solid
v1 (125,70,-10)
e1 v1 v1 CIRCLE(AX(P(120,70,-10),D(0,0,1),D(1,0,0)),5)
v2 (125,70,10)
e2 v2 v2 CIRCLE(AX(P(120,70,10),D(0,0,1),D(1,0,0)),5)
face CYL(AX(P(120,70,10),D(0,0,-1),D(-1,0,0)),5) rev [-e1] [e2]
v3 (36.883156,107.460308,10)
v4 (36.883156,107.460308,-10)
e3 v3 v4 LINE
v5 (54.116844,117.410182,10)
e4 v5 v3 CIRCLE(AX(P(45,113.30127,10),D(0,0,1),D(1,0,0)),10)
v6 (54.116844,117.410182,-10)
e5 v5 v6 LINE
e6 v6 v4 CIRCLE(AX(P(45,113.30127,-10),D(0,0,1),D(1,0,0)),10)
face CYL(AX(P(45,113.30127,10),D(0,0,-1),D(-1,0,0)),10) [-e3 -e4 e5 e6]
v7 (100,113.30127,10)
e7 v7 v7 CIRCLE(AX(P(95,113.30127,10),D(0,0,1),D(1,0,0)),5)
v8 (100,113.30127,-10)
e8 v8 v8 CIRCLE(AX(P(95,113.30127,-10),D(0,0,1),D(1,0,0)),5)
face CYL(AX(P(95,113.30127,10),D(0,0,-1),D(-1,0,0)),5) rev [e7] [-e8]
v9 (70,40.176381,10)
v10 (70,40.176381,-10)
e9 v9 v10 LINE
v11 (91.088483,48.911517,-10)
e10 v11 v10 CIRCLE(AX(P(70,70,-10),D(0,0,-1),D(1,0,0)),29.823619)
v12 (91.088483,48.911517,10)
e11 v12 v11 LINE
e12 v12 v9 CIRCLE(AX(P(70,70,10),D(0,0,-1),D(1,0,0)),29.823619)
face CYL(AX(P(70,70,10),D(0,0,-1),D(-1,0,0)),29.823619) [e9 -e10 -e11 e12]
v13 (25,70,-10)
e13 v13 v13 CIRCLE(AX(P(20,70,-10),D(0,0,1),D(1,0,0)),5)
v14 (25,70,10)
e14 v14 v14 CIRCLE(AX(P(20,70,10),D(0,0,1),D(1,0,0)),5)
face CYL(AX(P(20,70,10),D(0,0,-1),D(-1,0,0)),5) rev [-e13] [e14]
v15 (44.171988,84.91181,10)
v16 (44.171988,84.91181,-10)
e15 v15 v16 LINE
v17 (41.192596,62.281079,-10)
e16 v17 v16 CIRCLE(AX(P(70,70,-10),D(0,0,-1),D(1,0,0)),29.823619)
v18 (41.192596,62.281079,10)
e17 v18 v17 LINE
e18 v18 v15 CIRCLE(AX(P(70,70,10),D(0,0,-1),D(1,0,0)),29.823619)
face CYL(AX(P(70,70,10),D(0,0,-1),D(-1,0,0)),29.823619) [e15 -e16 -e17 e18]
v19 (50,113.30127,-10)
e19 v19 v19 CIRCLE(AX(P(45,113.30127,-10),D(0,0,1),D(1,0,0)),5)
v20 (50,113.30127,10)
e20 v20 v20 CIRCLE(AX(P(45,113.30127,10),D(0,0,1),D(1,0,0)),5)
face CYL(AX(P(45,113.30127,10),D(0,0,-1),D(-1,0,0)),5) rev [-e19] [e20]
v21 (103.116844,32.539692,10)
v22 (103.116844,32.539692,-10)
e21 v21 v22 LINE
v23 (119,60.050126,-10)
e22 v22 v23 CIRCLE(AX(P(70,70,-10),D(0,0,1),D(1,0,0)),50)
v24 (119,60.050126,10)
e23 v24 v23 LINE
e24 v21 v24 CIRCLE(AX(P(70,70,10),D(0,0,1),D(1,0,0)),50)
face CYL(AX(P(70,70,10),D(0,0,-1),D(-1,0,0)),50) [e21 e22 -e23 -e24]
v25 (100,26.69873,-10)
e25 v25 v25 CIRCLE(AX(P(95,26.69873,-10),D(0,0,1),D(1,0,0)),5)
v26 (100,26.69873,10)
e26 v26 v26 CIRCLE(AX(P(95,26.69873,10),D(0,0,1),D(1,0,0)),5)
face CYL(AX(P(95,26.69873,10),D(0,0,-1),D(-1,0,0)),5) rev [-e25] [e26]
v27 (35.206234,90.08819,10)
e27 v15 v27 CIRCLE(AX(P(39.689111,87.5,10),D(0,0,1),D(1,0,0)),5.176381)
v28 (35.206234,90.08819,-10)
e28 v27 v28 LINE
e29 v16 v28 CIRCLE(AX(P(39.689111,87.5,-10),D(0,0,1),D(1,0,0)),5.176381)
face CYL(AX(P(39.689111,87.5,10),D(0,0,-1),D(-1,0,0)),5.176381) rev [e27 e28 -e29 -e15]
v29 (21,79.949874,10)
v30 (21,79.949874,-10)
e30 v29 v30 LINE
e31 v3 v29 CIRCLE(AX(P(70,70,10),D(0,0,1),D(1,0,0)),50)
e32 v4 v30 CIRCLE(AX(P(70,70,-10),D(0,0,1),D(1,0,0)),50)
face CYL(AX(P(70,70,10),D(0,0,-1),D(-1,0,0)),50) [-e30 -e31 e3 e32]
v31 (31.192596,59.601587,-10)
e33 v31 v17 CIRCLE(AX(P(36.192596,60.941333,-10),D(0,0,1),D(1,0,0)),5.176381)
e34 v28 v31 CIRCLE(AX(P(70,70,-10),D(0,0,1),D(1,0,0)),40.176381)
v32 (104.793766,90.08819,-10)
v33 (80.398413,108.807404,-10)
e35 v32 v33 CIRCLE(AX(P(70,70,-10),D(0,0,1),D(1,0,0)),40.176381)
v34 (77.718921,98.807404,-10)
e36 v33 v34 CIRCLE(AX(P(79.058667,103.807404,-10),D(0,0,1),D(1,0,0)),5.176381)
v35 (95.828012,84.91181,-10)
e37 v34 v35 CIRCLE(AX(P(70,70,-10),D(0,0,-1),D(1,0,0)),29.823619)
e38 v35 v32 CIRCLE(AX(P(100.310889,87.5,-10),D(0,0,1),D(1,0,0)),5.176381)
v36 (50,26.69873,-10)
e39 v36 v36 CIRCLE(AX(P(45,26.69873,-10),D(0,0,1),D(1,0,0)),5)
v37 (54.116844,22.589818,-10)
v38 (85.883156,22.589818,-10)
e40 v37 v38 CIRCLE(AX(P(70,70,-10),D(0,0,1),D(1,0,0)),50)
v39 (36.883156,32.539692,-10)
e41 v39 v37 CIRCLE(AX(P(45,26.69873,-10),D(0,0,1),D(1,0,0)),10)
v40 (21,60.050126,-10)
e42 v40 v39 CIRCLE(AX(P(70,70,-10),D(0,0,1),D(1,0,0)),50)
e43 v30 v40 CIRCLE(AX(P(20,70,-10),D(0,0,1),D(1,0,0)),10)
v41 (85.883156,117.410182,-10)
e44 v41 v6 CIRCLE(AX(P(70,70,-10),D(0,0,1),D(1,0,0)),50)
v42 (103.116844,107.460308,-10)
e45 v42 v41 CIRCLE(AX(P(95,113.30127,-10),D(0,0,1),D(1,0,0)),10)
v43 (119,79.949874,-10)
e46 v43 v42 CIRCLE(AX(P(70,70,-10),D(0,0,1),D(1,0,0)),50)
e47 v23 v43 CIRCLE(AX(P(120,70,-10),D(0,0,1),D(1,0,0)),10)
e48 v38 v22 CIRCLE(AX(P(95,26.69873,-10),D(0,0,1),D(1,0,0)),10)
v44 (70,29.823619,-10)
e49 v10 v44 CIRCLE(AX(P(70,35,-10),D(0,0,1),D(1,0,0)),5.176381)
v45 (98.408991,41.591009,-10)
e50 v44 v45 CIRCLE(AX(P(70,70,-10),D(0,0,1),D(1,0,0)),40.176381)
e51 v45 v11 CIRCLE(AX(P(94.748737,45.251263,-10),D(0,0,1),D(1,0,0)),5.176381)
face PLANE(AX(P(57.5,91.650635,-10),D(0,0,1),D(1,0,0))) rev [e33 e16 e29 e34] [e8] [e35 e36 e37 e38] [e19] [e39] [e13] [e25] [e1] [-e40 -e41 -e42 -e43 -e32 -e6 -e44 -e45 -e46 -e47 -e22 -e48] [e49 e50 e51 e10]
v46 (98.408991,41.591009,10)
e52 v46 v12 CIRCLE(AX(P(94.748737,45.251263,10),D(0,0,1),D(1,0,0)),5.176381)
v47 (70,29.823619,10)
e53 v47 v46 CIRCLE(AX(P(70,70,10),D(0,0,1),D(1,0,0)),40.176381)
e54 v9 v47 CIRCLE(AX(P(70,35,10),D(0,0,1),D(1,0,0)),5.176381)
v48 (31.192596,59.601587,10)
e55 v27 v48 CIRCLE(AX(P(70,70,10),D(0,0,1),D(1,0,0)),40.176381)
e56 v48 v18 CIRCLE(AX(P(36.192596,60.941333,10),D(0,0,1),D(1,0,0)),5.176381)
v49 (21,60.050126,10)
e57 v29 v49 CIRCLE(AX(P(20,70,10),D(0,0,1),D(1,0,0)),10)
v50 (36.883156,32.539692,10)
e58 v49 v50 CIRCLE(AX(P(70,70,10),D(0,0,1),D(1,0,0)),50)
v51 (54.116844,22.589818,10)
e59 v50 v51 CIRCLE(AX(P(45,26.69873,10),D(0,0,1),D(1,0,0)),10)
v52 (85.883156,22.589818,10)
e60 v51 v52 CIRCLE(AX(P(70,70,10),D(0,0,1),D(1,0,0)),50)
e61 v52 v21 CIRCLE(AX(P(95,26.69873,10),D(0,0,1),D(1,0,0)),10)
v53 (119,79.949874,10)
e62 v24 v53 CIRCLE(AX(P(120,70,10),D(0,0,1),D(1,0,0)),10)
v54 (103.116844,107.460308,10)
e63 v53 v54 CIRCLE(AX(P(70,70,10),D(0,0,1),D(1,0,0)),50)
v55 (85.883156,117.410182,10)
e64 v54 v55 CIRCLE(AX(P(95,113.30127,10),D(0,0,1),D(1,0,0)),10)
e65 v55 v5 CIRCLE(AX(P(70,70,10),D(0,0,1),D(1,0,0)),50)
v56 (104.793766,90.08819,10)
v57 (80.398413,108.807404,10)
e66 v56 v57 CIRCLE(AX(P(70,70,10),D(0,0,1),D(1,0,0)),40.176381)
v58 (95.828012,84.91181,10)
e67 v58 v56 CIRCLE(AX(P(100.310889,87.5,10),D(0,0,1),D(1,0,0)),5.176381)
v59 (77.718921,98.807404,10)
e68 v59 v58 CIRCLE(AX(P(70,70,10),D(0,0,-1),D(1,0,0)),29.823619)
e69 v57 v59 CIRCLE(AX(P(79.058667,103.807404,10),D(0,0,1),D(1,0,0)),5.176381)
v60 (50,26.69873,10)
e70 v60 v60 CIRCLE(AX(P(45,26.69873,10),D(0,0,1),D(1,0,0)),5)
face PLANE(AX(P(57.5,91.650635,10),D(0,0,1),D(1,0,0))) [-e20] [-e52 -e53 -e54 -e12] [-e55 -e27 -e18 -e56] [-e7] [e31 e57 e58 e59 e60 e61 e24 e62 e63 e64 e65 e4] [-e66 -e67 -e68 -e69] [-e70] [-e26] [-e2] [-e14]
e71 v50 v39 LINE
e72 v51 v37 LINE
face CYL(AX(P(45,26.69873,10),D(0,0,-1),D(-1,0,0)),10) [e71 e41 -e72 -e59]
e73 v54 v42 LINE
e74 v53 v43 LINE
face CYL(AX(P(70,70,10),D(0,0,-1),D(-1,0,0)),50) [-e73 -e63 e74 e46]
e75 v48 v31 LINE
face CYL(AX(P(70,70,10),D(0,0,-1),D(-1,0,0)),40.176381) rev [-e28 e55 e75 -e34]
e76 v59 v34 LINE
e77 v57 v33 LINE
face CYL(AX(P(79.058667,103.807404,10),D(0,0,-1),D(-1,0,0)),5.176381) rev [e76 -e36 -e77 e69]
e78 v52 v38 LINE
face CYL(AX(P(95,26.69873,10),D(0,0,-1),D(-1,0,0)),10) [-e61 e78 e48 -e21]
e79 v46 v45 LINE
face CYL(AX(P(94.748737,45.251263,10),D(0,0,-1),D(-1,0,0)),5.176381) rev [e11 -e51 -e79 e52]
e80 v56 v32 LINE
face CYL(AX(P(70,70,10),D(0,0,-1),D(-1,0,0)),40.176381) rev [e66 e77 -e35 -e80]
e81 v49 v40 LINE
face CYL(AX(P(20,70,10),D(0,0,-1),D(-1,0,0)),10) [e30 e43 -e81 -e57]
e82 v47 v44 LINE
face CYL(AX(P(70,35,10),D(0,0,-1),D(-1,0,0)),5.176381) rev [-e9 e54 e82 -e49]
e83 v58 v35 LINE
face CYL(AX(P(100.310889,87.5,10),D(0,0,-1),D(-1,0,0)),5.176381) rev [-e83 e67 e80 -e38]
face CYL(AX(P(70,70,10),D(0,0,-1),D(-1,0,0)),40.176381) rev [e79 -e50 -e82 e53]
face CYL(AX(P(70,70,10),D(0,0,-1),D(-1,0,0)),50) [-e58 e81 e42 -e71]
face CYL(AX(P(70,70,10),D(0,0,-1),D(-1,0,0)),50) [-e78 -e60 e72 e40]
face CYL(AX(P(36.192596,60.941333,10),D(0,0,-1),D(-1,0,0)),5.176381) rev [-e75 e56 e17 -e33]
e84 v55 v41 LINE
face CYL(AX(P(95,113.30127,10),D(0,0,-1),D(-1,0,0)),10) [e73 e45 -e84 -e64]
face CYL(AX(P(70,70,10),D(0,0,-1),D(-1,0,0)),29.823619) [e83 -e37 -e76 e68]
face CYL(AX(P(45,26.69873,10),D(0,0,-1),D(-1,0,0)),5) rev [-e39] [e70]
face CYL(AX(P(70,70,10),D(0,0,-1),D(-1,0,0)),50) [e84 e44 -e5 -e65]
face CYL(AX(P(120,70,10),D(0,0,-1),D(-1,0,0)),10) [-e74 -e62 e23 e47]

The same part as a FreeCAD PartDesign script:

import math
import FreeCAD as App
import Part
import Sketcher
from FreeCAD import Vector

doc = App.newDocument("Part")
params = doc.addObject("Spreadsheet::Sheet", "Params")
for row, (alias, value) in enumerate([
    ("sketch1_diameter", "10 mm"),
    ("sketch1_radius", "50 mm"),
    ("sketch1_radius2", "10 mm"),
    ("pad1_length", "20 mm"),
], start=1):
    params.set(f"A{row}", alias)
    params.set(f"B{row}", "=" + value)
    params.setAlias(f"B{row}", alias)

body = doc.addObject("PartDesign::Body", "Body")

# Sketch on XY plane
sketch1 = doc.addObject("Sketcher::SketchObject", "Sketch")
body.addObject(sketch1)
sketch1.AttachmentSupport = (doc.XY_Plane, [""])
sketch1.MapMode = "FlatFace"
sketch1.addGeometry(Part.ArcOfCircle(Part.Circle(Vector(70, 70, 0), Vector(0, 0, 1), 50), math.radians(71), math.radians(109)), False)
sketch1.addGeometry(Part.ArcOfCircle(Part.Circle(Vector(45, 113, 0), Vector(0, 0, 1), 10), math.radians(24), math.radians(216)), False)
sketch1.addGeometry(Part.ArcOfCircle(Part.Circle(Vector(70, 70, 0), Vector(0, 0, 1), 50), math.radians(131), math.radians(169)), False)
sketch1.addGeometry(Part.ArcOfCircle(Part.Circle(Vector(20, 70, 0), Vector(0, 0, 1), 10), math.radians(84), math.radians(276)), False)
sketch1.addGeometry(Part.ArcOfCircle(Part.Circle(Vector(70, 70, 0), Vector(0, 0, 1), 50), math.radians(-169), math.radians(-131)), False)
sketch1.addGeometry(Part.ArcOfCircle(Part.Circle(Vector(45, 27, 0), Vector(0, 0, 1), 10), math.radians(144), math.radians(336)), False)
sketch1.addGeometry(Part.ArcOfCircle(Part.Circle(Vector(70, 70, 0), Vector(0, 0, 1), 50), math.radians(-109), math.radians(-71)), False)
sketch1.addGeometry(Part.ArcOfCircle(Part.Circle(Vector(95, 27, 0), Vector(0, 0, 1), 10), math.radians(-156), math.radians(36)), False)
sketch1.addGeometry(Part.ArcOfCircle(Part.Circle(Vector(70, 70, 0), Vector(0, 0, 1), 50), math.radians(-49), math.radians(-11)), False)
sketch1.addGeometry(Part.ArcOfCircle(Part.Circle(Vector(120, 70, 0), Vector(0, 0, 1), 10), math.radians(-96), math.radians(96)), False)
sketch1.addGeometry(Part.ArcOfCircle(Part.Circle(Vector(70, 70, 0), Vector(0, 0, 1), 50), math.radians(11), math.radians(49)), False)
sketch1.addGeometry(Part.ArcOfCircle(Part.Circle(Vector(95, 113, 0), Vector(0, 0, 1), 10), math.radians(-36), math.radians(156)), False)
sketch1.addGeometry(Part.Circle(Vector(45, 27, 0), Vector(0, 0, 1), 5), False)
sketch1.addGeometry(Part.Circle(Vector(95, 27, 0), Vector(0, 0, 1), 5), False)
sketch1.addGeometry(Part.ArcOfCircle(Part.Circle(Vector(70, 70, 0), Vector(0, 0, 1), 40), math.radians(-90), math.radians(-45)), False)
sketch1.addGeometry(Part.ArcOfCircle(Part.Circle(Vector(70, 35, 0), Vector(0, 0, 1), 5), math.radians(90), math.radians(270)), False)
sketch1.addGeometry(Part.ArcOfCircle(Part.Circle(Vector(70, 70, 0), Vector(0, 0, 1), 30), math.radians(-90), math.radians(-45)), False)
sketch1.addGeometry(Part.ArcOfCircle(Part.Circle(Vector(95, 45, 0), Vector(0, 0, 1), 5), math.radians(-45), math.radians(135)), False)
sketch1.addGeometry(Part.Circle(Vector(20, 70, 0), Vector(0, 0, 1), 5), False)
sketch1.addGeometry(Part.ArcOfCircle(Part.Circle(Vector(70, 70, 0), Vector(0, 0, 1), 40), math.radians(150), math.radians(195)), False)
sketch1.addGeometry(Part.ArcOfCircle(Part.Circle(Vector(40, 88, 0), Vector(0, 0, 1), 5), math.radians(-30), math.radians(150)), False)
sketch1.addGeometry(Part.ArcOfCircle(Part.Circle(Vector(70, 70, 0), Vector(0, 0, 1), 30), math.radians(150), math.radians(195)), False)
sketch1.addGeometry(Part.ArcOfCircle(Part.Circle(Vector(36, 61, 0), Vector(0, 0, 1), 5), math.radians(-165), math.radians(15)), False)
sketch1.addGeometry(Part.Circle(Vector(45, 113, 0), Vector(0, 0, 1), 5), False)
sketch1.addGeometry(Part.Circle(Vector(120, 70, 0), Vector(0, 0, 1), 5), False)
sketch1.addGeometry(Part.ArcOfCircle(Part.Circle(Vector(70, 70, 0), Vector(0, 0, 1), 40), math.radians(30), math.radians(75)), False)
sketch1.addGeometry(Part.ArcOfCircle(Part.Circle(Vector(100, 88, 0), Vector(0, 0, 1), 5), math.radians(-150), math.radians(30)), False)
sketch1.addGeometry(Part.ArcOfCircle(Part.Circle(Vector(70, 70, 0), Vector(0, 0, 1), 30), math.radians(30), math.radians(75)), False)
sketch1.addGeometry(Part.ArcOfCircle(Part.Circle(Vector(79, 104, 0), Vector(0, 0, 1), 5), math.radians(75), math.radians(255)), False)
sketch1.addGeometry(Part.Circle(Vector(95, 113, 0), Vector(0, 0, 1), 5), False)
sketch1.addConstraint(Sketcher.Constraint("Coincident", 0, 2, 1, 1))
sketch1.addConstraint(Sketcher.Constraint("Coincident", 1, 2, 2, 1))
sketch1.addConstraint(Sketcher.Constraint("Coincident", 2, 2, 3, 1))
sketch1.addConstraint(Sketcher.Constraint("Coincident", 3, 2, 4, 1))
sketch1.addConstraint(Sketcher.Constraint("Coincident", 4, 2, 5, 1))
sketch1.addConstraint(Sketcher.Constraint("Coincident", 5, 2, 6, 1))
sketch1.addConstraint(Sketcher.Constraint("Coincident", 6, 2, 7, 1))
sketch1.addConstraint(Sketcher.Constraint("Coincident", 7, 2, 8, 1))
sketch1.addConstraint(Sketcher.Constraint("Coincident", 8, 2, 9, 1))
sketch1.addConstraint(Sketcher.Constraint("Coincident", 9, 2, 10, 1))
sketch1.addConstraint(Sketcher.Constraint("Coincident", 10, 2, 11, 1))
sketch1.addConstraint(Sketcher.Constraint("Coincident", 11, 2, 0, 1))
sketch1.addConstraint(Sketcher.Constraint("Tangent", 14, 1, 15, 2))
sketch1.addConstraint(Sketcher.Constraint("Tangent", 15, 1, 16, 1))
sketch1.addConstraint(Sketcher.Constraint("Tangent", 16, 2, 17, 2))
sketch1.addConstraint(Sketcher.Constraint("Tangent", 17, 1, 14, 2))
sketch1.addConstraint(Sketcher.Constraint("Tangent", 19, 1, 20, 2))
sketch1.addConstraint(Sketcher.Constraint("Tangent", 20, 1, 21, 1))
sketch1.addConstraint(Sketcher.Constraint("Tangent", 21, 2, 22, 2))
sketch1.addConstraint(Sketcher.Constraint("Tangent", 22, 1, 19, 2))
sketch1.addConstraint(Sketcher.Constraint("Tangent", 25, 1, 26, 2))
sketch1.addConstraint(Sketcher.Constraint("Tangent", 26, 1, 27, 1))
sketch1.addConstraint(Sketcher.Constraint("Tangent", 27, 2, 28, 2))
sketch1.addConstraint(Sketcher.Constraint("Tangent", 28, 1, 25, 2))
sketch1.addConstraint(Sketcher.Constraint("Coincident", 2, 3, 0, 3))
sketch1.addConstraint(Sketcher.Constraint("Coincident", 4, 3, 0, 3))
sketch1.addConstraint(Sketcher.Constraint("Coincident", 6, 3, 0, 3))
sketch1.addConstraint(Sketcher.Constraint("Coincident", 8, 3, 0, 3))
sketch1.addConstraint(Sketcher.Constraint("Coincident", 10, 3, 0, 3))
sketch1.addConstraint(Sketcher.Constraint("Coincident", 12, 3, 5, 3))
sketch1.addConstraint(Sketcher.Constraint("Coincident", 13, 3, 7, 3))
sketch1.addConstraint(Sketcher.Constraint("Coincident", 14, 3, 0, 3))
sketch1.addConstraint(Sketcher.Constraint("Coincident", 16, 3, 0, 3))
sketch1.addConstraint(Sketcher.Constraint("Coincident", 18, 3, 3, 3))
sketch1.addConstraint(Sketcher.Constraint("Coincident", 19, 3, 0, 3))
sketch1.addConstraint(Sketcher.Constraint("Coincident", 21, 3, 0, 3))
sketch1.addConstraint(Sketcher.Constraint("Coincident", 23, 3, 1, 3))
sketch1.addConstraint(Sketcher.Constraint("Coincident", 24, 3, 9, 3))
sketch1.addConstraint(Sketcher.Constraint("Coincident", 25, 3, 0, 3))
sketch1.addConstraint(Sketcher.Constraint("Coincident", 27, 3, 0, 3))
sketch1.addConstraint(Sketcher.Constraint("Coincident", 29, 3, 11, 3))
sketch1.addConstraint(Sketcher.Constraint("Equal", 0, 2))
sketch1.addConstraint(Sketcher.Constraint("Equal", 1, 3))
sketch1.addConstraint(Sketcher.Constraint("Equal", 2, 4))
sketch1.addConstraint(Sketcher.Constraint("Equal", 3, 5))
sketch1.addConstraint(Sketcher.Constraint("Equal", 4, 6))
sketch1.addConstraint(Sketcher.Constraint("Equal", 5, 7))
sketch1.addConstraint(Sketcher.Constraint("Equal", 6, 8))
sketch1.addConstraint(Sketcher.Constraint("Equal", 7, 9))
sketch1.addConstraint(Sketcher.Constraint("Equal", 8, 10))
sketch1.addConstraint(Sketcher.Constraint("Equal", 9, 11))
sketch1.addConstraint(Sketcher.Constraint("Equal", 12, 13))
sketch1.addConstraint(Sketcher.Constraint("Equal", 13, 18))
sketch1.addConstraint(Sketcher.Constraint("Equal", 14, 19))
sketch1.addConstraint(Sketcher.Constraint("Equal", 17, 20))
sketch1.addConstraint(Sketcher.Constraint("Equal", 18, 23))
sketch1.addConstraint(Sketcher.Constraint("Equal", 23, 24))
sketch1.addConstraint(Sketcher.Constraint("Equal", 19, 25))
sketch1.addConstraint(Sketcher.Constraint("Equal", 22, 26))
sketch1.addConstraint(Sketcher.Constraint("Equal", 24, 29))
sketch1.addConstraint(Sketcher.Constraint("Horizontal", 2, 3, 3, 3))
sketch1.addConstraint(Sketcher.Constraint("Horizontal", 5, 3, 7, 3))
sketch1.addConstraint(Sketcher.Constraint("Horizontal", 8, 3, 9, 3))
sketch1.addConstraint(Sketcher.Constraint("Horizontal", 1, 3, 11, 3))
sketch1.addConstraint(Sketcher.Constraint("Horizontal", 20, 3, 26, 3))
sketch1.addConstraint(Sketcher.Constraint("Horizontal", 5, 2, 6, 2))
sketch1.addConstraint(Sketcher.Constraint("Horizontal", 3, 2, 8, 2))
sketch1.addConstraint(Sketcher.Constraint("Horizontal", 1, 2, 10, 2))
sketch1.addConstraint(Sketcher.Constraint("Vertical", 1, 3, 5, 3))
sketch1.addConstraint(Sketcher.Constraint("Vertical", 14, 3, 15, 3))
sketch1.addConstraint(Sketcher.Constraint("Vertical", 1, 2, 4, 2))
sketch1.addConstraint(Sketcher.Constraint("Diameter", 12, 10.0))
sketch1.addConstraint(Sketcher.Constraint("Radius", 0, 50.0))
sketch1.addConstraint(Sketcher.Constraint("Radius", 1, 10.0))
sketch1.addConstraint(Sketcher.Constraint("DistanceX", -1, 1, 0, 3, 70.0))
sketch1.addConstraint(Sketcher.Constraint("DistanceY", -1, 1, 0, 3, 70.0))
sketch1.addConstraint(Sketcher.Constraint("DistanceX", -1, 1, 1, 3, 45.0))
sketch1.addConstraint(Sketcher.Constraint("DistanceX", -1, 1, 3, 3, 20.0))
sketch1.addConstraint(Sketcher.Constraint("DistanceY", -1, 1, 15, 3, 35.0))
sketch1.addConstraint(Sketcher.Constraint("DistanceX", 22, 3, 21, 2, 5.0))
sketch1.addConstraint(Sketcher.Constraint("DistanceY", 27, 2, 28, 3, 5.0))
sketch1.addConstraint(Sketcher.Constraint("DistanceY", -1, 1, 20, 3, 87.5))
sketch1.addConstraint(Sketcher.Constraint("Radius", 14, 40.176381))
sketch1.addConstraint(Sketcher.Constraint("DistanceY", 6, 2, 14, 1, 7.233801))
sketch1.addConstraint(Sketcher.Constraint("DistanceX", -1, 1, 17, 1, 98.408991))
sketch1.setExpression("Constraints[71]", "Params.sketch1_diameter")
sketch1.setExpression("Constraints[72]", "Params.sketch1_radius")
sketch1.setExpression("Constraints[73]", "Params.sketch1_radius2")
pad1 = doc.addObject("PartDesign::Pad", "Pad")
body.addObject(pad1)
pad1.Profile = sketch1
pad1.setExpression("Length", "Params.pad1_length")
pad1.Midplane = True

doc.recompute()
